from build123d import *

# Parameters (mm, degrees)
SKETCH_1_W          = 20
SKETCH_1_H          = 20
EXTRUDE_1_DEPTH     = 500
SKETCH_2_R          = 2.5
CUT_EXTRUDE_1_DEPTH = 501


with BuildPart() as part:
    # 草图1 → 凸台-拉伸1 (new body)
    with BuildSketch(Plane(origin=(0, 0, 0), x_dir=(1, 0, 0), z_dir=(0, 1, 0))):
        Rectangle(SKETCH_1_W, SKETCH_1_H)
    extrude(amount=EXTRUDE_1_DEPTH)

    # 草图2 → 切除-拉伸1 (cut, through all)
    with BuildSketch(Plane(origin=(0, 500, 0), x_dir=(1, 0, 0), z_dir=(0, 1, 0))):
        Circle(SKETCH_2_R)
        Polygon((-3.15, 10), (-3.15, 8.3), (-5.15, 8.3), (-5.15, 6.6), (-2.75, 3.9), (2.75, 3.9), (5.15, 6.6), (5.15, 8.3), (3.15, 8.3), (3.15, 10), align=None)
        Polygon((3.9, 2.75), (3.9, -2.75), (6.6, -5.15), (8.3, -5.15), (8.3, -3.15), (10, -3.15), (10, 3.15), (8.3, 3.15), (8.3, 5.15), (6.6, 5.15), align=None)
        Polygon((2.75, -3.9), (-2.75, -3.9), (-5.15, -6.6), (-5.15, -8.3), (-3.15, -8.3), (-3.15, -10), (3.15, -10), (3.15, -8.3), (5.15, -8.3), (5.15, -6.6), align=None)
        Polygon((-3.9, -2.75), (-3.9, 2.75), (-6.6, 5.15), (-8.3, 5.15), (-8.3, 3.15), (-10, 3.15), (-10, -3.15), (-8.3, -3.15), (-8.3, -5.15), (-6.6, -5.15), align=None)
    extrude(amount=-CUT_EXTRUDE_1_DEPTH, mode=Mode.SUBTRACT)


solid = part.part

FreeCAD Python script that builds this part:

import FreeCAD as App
import Part
import Sketcher

V = App.Vector
Q = App.Units.Quantity


def add_polygon(sketch, points):
    """Adds a closed chain of lines whose ends are joined by coincident constraints."""
    first, n = sketch.GeometryCount, len(points)
    for a, b in zip(points, points[1:] + points[:1]):
        sketch.addGeometry(Part.LineSegment(App.Vector(*a, 0), App.Vector(*b, 0)), False)
    for i in range(n):
        sketch.addConstraint(Sketcher.Constraint("Coincident", first + i, 2, first + (i + 1) % n, 1))

doc = App.newDocument("Part")
body = doc.addObject("PartDesign::Body", "Body")

# Sketch on XZ plane
sketch1 = body.newObject("Sketcher::SketchObject", "Sketch")
sketch1.AttachmentSupport = (doc.getObject("XZ_Plane"), [""])
sketch1.MapMode = "FlatFace"
add_polygon(sketch1, [(-10, -10), (-10, 10), (10, 10), (10, -10)])  # lines 0-3
sketch1.addConstraint(Sketcher.Constraint("Vertical", 0))
sketch1.addConstraint(Sketcher.Constraint("Horizontal", 1))
sketch1.addConstraint(Sketcher.Constraint("Vertical", 2))
sketch1.addConstraint(Sketcher.Constraint("Horizontal", 3))
sketch1.addConstraint(Sketcher.Constraint("Symmetric", 0, 2, 2, 2, -1, 1))
sketch1.addConstraint(Sketcher.Constraint("Equal", 3, 0))
sketch1.addConstraint(Sketcher.Constraint("DistanceX", 1, 1, 1, 2, Q("20 mm")))
pad1 = body.newObject("PartDesign::Pad", "Pad")
pad1.Profile = sketch1
pad1.Length = 500
pad1.Reversed = True

# Sketch on XZ plane
sketch2 = body.newObject("Sketcher::SketchObject", "Sketch001")
sketch2.AttachmentSupport = (doc.getObject("XZ_Plane"), [""])
sketch2.MapMode = "FlatFace"
sketch2.AttachmentOffset = App.Placement(V(0, 0, -500), App.Rotation())
sketch2.addGeometry(Part.Circle(V(0, 0, 0), V(0, 0, 1), 2.5), False)  # 0
add_polygon(sketch2, [(-3.1, -10), (-3.1, -8.3), (-5.2, -8.3), (-5.2, -6.6), (-2.8, -3.9), (2.8, -3.9), (5.2, -6.6), (5.2, -8.3), (3.1, -8.3), (3.1, -10)])  # lines 1-10
add_polygon(sketch2, [(3.9, -2.8), (3.9, 2.8), (6.6, 5.2), (8.3, 5.2), (8.3, 3.1), (10, 3.1), (10, -3.1), (8.3, -3.1), (8.3, -5.2), (6.6, -5.2)])  # lines 11-20
add_polygon(sketch2, [(2.8, 3.9), (-2.8, 3.9), (-5.2, 6.6), (-5.2, 8.3), (-3.1, 8.3), (-3.1, 10), (3.1, 10), (3.1, 8.3), (5.2, 8.3), (5.2, 6.6)])  # lines 21-30
add_polygon(sketch2, [(-3.9, 2.8), (-3.9, -2.8), (-6.6, -5.2), (-8.3, -5.2), (-8.3, -3.1), (-10, -3.1), (-10, 3.1), (-8.3, 3.1), (-8.3, 5.2), (-6.6, 5.2)])  # lines 31-40
sketch2.addConstraint(Sketcher.Constraint("Vertical", 1))
sketch2.addConstraint(Sketcher.Constraint("Horizontal", 2))
sketch2.addConstraint(Sketcher.Constraint("Vertical", 3))
sketch2.addConstraint(Sketcher.Constraint("Horizontal", 5))
sketch2.addConstraint(Sketcher.Constraint("Vertical", 7))
sketch2.addConstraint(Sketcher.Constraint("Horizontal", 8))
sketch2.addConstraint(Sketcher.Constraint("Vertical", 9))
sketch2.addConstraint(Sketcher.Constraint("Horizontal", 10))
sketch2.addConstraint(Sketcher.Constraint("Vertical", 11))
sketch2.addConstraint(Sketcher.Constraint("Horizontal", 13))
sketch2.addConstraint(Sketcher.Constraint("Vertical", 14))
sketch2.addConstraint(Sketcher.Constraint("Horizontal", 15))
sketch2.addConstraint(Sketcher.Constraint("Vertical", 16))
sketch2.addConstraint(Sketcher.Constraint("Horizontal", 17))
sketch2.addConstraint(Sketcher.Constraint("Vertical", 18))
sketch2.addConstraint(Sketcher.Constraint("Horizontal", 19))
sketch2.addConstraint(Sketcher.Constraint("Horizontal", 21))
sketch2.addConstraint(Sketcher.Constraint("Vertical", 23))
sketch2.addConstraint(Sketcher.Constraint("Horizontal", 24))
sketch2.addConstraint(Sketcher.Constraint("Vertical", 25))
sketch2.addConstraint(Sketcher.Constraint("Horizontal", 26))
sketch2.addConstraint(Sketcher.Constraint("Vertical", 27))
sketch2.addConstraint(Sketcher.Constraint("Horizontal", 28))
sketch2.addConstraint(Sketcher.Constraint("Vertical", 29))
sketch2.addConstraint(Sketcher.Constraint("Vertical", 31))
sketch2.addConstraint(Sketcher.Constraint("Horizontal", 33))
sketch2.addConstraint(Sketcher.Constraint("Vertical", 34))
sketch2.addConstraint(Sketcher.Constraint("Horizontal", 35))
sketch2.addConstraint(Sketcher.Constraint("Vertical", 36))
sketch2.addConstraint(Sketcher.Constraint("Horizontal", 37))
sketch2.addConstraint(Sketcher.Constraint("Vertical", 38))
sketch2.addConstraint(Sketcher.Constraint("Horizontal", 39))
sketch2.addConstraint(Sketcher.Constraint("Coincident", 0, 3, -1, 1))
sketch2.addConstraint(Sketcher.Constraint("Symmetric", 5, 2, 21, 2, -1, 1))
sketch2.addConstraint(Sketcher.Constraint("Symmetric", 6, 2, 22, 2, -1, 1))
sketch2.addConstraint(Sketcher.Constraint("Symmetric", 8, 2, 24, 2, -1, 1))
sketch2.addConstraint(Sketcher.Constraint("Symmetric", 10, 2, 26, 2, -1, 1))
sketch2.addConstraint(Sketcher.Constraint("Symmetric", 2, 2, 28, 2, -1, 1))
sketch2.addConstraint(Sketcher.Constraint("Symmetric", 11, 2, 31, 2, -1, 1))
sketch2.addConstraint(Sketcher.Constraint("Symmetric", 12, 2, 32, 2, -1, 1))
sketch2.addConstraint(Sketcher.Constraint("Symmetric", 14, 2, 34, 2, -1, 1))
sketch2.addConstraint(Sketcher.Constraint("Symmetric", 16, 2, 36, 2, -1, 1))
sketch2.addConstraint(Sketcher.Constraint("Symmetric", 18, 2, 38, 2, -1, 1))
sketch2.addConstraint(Sketcher.Constraint("Symmetric", 3, 2, 6, 2, -2))
sketch2.addConstraint(Sketcher.Constraint("Symmetric", 1, 2, 8, 2, -2))
sketch2.addConstraint(Sketcher.Constraint("Symmetric", 19, 2, 32, 2, -2))
sketch2.addConstraint(Sketcher.Constraint("Symmetric", 17, 2, 34, 2, -2))
sketch2.addConstraint(Sketcher.Constraint("Perpendicular", 6, 12))
sketch2.addConstraint(Sketcher.Constraint("Perpendicular", 4, 20))
sketch2.addConstraint(Sketcher.Constraint("Perpendicular", 20, 30))
sketch2.addConstraint(Sketcher.Constraint("Perpendicular", 30, 40))
sketch2.addConstraint(Sketcher.Constraint("Horizontal", 22, 2, 29, 2))
sketch2.addConstraint(Sketcher.Constraint("Horizontal", 20, 2, 31, 2))
sketch2.addConstraint(Sketcher.Constraint("Horizontal", 11, 2, 40, 2))
sketch2.addConstraint(Sketcher.Constraint("Equal", 13, 15))
sketch2.addConstraint(Sketcher.Constraint("Equal", 39, 1))
sketch2.addConstraint(Sketcher.Constraint("Equal", 1, 3))
sketch2.addConstraint(Sketcher.Constraint("Equal", 21, 11))
sketch2.addConstraint(Sketcher.Constraint("Equal", 28, 14))
sketch2.addConstraint(Sketcher.Constraint("Equal", 26, 16))
sketch2.addConstraint(Sketcher.Constraint("Diameter", 0, Q("5 mm")))
sketch2.addConstraint(Sketcher.Constraint("DistanceX", 2, 2, 2, 1, Q("2 mm")))
sketch2.addConstraint(Sketcher.Constraint("DistanceX", 5, 1, 5, 2, Q("5.5 mm")))
sketch2.addConstraint(Sketcher.Constraint("DistanceX", 10, 2, 10, 1, Q("6.3 mm")))
sketch2.addConstraint(Sketcher.Constraint("DistanceX", 13, 1, 13, 2, Q("1.7 mm")))
sketch2.addConstraint(Sketcher.Constraint("DistanceY", 9, 2, -1, 1, Q("10 mm")))
sketch2.addConstraint(Sketcher.Constraint("DistanceX", -1, 1, 15, 2, Q("10 mm")))
sketch2.addConstraint(Sketcher.Constraint("DistanceY", 4, 2, -1, 1, Q("3.9 mm")))
pocket1 = body.newObject("PartDesign::Pocket", "Pocket")
pocket1.Profile = sketch2
pocket1.Type = "ThroughAll"
pocket1.Reversed = True

doc.recompute()
